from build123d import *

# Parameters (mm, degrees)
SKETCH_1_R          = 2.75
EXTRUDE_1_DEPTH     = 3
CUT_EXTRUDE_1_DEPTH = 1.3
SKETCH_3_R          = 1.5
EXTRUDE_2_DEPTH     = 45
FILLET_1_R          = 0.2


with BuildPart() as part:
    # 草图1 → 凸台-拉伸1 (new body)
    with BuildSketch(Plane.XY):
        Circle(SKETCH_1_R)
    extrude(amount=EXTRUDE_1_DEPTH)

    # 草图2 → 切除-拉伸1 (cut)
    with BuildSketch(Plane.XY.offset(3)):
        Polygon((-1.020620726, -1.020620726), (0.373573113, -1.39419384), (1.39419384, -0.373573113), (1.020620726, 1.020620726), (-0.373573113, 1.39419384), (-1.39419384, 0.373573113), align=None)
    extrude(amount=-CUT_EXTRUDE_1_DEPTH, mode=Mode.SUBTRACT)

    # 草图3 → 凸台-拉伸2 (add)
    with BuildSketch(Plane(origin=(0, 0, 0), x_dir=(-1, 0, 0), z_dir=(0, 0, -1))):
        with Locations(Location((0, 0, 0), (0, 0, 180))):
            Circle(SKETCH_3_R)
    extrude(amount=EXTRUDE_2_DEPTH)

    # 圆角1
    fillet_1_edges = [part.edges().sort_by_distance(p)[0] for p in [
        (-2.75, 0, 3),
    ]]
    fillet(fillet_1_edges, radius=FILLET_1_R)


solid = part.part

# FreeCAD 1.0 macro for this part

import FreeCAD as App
import Part
import Sketcher
Q = App.Units.Quantity


def edges_at(feature, points):
    """Names of the edges that pass closest to the given points."""
    edges = feature.Shape.Edges
    near = lambda p: min(range(len(edges)), key=lambda i: edges[i].distToShape(Part.Vertex(*p))[0])
    return sorted({f"Edge{near(p) + 1}" for p in points})


def add_polygon(sketch, points):
    """Adds a closed chain of lines whose ends are joined by coincident constraints."""
    first, n = sketch.GeometryCount, len(points)
    for a, b in zip(points, points[1:] + points[:1]):
        sketch.addGeometry(Part.LineSegment(App.Vector(*a, 0), App.Vector(*b, 0)), False)
    for i in range(n):
        sketch.addConstraint(Sketcher.Constraint("Coincident", first + i, 2, first + (i + 1) % n, 1))

doc = App.newDocument("Part")
params = doc.addObject("Spreadsheet::Sheet", "Params")
for row, (alias, value) in enumerate([
    ("sketch1_diameter", "5.5 mm"),
    ("pad1_length", "3 mm"),
    ("pocket1_length", "1.3 mm"),
    ("sketch3_diameter", "3 mm"),
    ("pad2_length", "45 mm"),
    ("fillet_radius", "0.2 mm"),
], start=1):
    params.set(f"A{row}", alias)
    params.set(f"B{row}", "=" + value)
    params.setAlias(f"B{row}", alias)

body = doc.addObject("PartDesign::Body", "Body")

# Sketch on XY plane
sketch1 = body.newObject("Sketcher::SketchObject", "Sketch")
sketch1.AttachmentSupport = (doc.getObject("XY_Plane"), [""])
sketch1.MapMode = "FlatFace"
sketch1.addGeometry(Part.Circle(App.Vector(0, 0, 0), App.Vector(0, 0, 1), 2.8), False)
sketch1.addConstraint(Sketcher.Constraint("Coincident", 0, 3, -1, 1))
sketch1.addConstraint(Sketcher.Constraint("Diameter", 0, Q("5.5 mm")))
sketch1.setExpression("Constraints[1]", "Params.sketch1_diameter")
pad1 = body.newObject("PartDesign::Pad", "Pad")
pad1.Profile = sketch1
pad1.setExpression("Length", "Params.pad1_length")

# Sketch on XY plane
sketch2 = body.newObject("Sketcher::SketchObject", "Sketch001")
sketch2.AttachmentSupport = (doc.getObject("XY_Plane"), [""])
sketch2.MapMode = "FlatFace"
sketch2.AttachmentOffset = App.Placement(App.Vector(0, 0, 3), App.Rotation())
add_polygon(sketch2, [(-1, -1), (0.4, -1.4), (1.4, -0.4), (1, 1), (-0.4, 1.4), (-1.4, 0.4)])  # lines 0-5
sketch2.addConstraint(Sketcher.Constraint("Symmetric", 0, 2, 3, 2, -1, 1))
sketch2.addConstraint(Sketcher.Constraint("Symmetric", 1, 2, 4, 2, -1, 1))
sketch2.addConstraint(Sketcher.Constraint("Symmetric", 2, 2, 5, 2, -1, 1))
sketch2.addConstraint(Sketcher.Constraint("Equal", 0, 1))
sketch2.addConstraint(Sketcher.Constraint("Equal", 1, 2))
sketch2.addConstraint(Sketcher.Constraint("Angle", 0, Q("-15 deg")))
sketch2.addConstraint(Sketcher.Constraint("Angle", 1, Q("45 deg")))
sketch2.addConstraint(Sketcher.Constraint("Angle", 2, Q("105 deg")))
sketch2.addConstraint(Sketcher.Constraint("DistanceX", -1, 1, 2, 2, Q("1.020621 mm")))
pocket1 = body.newObject("PartDesign::Pocket", "Pocket")
pocket1.Profile = sketch2
pocket1.setExpression("Length", "Params.pocket1_length")

# Sketch on XY plane
sketch3 = body.newObject("Sketcher::SketchObject", "Sketch002")
sketch3.AttachmentSupport = (doc.getObject("XY_Plane"), [""])
sketch3.MapMode = "FlatFace"
sketch3.addGeometry(Part.Circle(App.Vector(0, 0, 0), App.Vector(0, 0, 1), 1.5), False)
sketch3.addConstraint(Sketcher.Constraint("Coincident", 0, 3, -1, 1))
sketch3.addConstraint(Sketcher.Constraint("Diameter", 0, Q("3 mm")))
sketch3.setExpression("Constraints[1]", "Params.sketch3_diameter")
pad2 = body.newObject("PartDesign::Pad", "Pad001")
pad2.Profile = sketch3
pad2.setExpression("Length", "Params.pad2_length")
pad2.Reversed = True
doc.recompute()

fillet = body.newObject("PartDesign::Fillet", "Fillet")
fillet.Base = (pad2, edges_at(pad2, [(-2.75, 0, 3)]))
fillet.setExpression("Radius", "Params.fillet_radius")

doc.recompute()
